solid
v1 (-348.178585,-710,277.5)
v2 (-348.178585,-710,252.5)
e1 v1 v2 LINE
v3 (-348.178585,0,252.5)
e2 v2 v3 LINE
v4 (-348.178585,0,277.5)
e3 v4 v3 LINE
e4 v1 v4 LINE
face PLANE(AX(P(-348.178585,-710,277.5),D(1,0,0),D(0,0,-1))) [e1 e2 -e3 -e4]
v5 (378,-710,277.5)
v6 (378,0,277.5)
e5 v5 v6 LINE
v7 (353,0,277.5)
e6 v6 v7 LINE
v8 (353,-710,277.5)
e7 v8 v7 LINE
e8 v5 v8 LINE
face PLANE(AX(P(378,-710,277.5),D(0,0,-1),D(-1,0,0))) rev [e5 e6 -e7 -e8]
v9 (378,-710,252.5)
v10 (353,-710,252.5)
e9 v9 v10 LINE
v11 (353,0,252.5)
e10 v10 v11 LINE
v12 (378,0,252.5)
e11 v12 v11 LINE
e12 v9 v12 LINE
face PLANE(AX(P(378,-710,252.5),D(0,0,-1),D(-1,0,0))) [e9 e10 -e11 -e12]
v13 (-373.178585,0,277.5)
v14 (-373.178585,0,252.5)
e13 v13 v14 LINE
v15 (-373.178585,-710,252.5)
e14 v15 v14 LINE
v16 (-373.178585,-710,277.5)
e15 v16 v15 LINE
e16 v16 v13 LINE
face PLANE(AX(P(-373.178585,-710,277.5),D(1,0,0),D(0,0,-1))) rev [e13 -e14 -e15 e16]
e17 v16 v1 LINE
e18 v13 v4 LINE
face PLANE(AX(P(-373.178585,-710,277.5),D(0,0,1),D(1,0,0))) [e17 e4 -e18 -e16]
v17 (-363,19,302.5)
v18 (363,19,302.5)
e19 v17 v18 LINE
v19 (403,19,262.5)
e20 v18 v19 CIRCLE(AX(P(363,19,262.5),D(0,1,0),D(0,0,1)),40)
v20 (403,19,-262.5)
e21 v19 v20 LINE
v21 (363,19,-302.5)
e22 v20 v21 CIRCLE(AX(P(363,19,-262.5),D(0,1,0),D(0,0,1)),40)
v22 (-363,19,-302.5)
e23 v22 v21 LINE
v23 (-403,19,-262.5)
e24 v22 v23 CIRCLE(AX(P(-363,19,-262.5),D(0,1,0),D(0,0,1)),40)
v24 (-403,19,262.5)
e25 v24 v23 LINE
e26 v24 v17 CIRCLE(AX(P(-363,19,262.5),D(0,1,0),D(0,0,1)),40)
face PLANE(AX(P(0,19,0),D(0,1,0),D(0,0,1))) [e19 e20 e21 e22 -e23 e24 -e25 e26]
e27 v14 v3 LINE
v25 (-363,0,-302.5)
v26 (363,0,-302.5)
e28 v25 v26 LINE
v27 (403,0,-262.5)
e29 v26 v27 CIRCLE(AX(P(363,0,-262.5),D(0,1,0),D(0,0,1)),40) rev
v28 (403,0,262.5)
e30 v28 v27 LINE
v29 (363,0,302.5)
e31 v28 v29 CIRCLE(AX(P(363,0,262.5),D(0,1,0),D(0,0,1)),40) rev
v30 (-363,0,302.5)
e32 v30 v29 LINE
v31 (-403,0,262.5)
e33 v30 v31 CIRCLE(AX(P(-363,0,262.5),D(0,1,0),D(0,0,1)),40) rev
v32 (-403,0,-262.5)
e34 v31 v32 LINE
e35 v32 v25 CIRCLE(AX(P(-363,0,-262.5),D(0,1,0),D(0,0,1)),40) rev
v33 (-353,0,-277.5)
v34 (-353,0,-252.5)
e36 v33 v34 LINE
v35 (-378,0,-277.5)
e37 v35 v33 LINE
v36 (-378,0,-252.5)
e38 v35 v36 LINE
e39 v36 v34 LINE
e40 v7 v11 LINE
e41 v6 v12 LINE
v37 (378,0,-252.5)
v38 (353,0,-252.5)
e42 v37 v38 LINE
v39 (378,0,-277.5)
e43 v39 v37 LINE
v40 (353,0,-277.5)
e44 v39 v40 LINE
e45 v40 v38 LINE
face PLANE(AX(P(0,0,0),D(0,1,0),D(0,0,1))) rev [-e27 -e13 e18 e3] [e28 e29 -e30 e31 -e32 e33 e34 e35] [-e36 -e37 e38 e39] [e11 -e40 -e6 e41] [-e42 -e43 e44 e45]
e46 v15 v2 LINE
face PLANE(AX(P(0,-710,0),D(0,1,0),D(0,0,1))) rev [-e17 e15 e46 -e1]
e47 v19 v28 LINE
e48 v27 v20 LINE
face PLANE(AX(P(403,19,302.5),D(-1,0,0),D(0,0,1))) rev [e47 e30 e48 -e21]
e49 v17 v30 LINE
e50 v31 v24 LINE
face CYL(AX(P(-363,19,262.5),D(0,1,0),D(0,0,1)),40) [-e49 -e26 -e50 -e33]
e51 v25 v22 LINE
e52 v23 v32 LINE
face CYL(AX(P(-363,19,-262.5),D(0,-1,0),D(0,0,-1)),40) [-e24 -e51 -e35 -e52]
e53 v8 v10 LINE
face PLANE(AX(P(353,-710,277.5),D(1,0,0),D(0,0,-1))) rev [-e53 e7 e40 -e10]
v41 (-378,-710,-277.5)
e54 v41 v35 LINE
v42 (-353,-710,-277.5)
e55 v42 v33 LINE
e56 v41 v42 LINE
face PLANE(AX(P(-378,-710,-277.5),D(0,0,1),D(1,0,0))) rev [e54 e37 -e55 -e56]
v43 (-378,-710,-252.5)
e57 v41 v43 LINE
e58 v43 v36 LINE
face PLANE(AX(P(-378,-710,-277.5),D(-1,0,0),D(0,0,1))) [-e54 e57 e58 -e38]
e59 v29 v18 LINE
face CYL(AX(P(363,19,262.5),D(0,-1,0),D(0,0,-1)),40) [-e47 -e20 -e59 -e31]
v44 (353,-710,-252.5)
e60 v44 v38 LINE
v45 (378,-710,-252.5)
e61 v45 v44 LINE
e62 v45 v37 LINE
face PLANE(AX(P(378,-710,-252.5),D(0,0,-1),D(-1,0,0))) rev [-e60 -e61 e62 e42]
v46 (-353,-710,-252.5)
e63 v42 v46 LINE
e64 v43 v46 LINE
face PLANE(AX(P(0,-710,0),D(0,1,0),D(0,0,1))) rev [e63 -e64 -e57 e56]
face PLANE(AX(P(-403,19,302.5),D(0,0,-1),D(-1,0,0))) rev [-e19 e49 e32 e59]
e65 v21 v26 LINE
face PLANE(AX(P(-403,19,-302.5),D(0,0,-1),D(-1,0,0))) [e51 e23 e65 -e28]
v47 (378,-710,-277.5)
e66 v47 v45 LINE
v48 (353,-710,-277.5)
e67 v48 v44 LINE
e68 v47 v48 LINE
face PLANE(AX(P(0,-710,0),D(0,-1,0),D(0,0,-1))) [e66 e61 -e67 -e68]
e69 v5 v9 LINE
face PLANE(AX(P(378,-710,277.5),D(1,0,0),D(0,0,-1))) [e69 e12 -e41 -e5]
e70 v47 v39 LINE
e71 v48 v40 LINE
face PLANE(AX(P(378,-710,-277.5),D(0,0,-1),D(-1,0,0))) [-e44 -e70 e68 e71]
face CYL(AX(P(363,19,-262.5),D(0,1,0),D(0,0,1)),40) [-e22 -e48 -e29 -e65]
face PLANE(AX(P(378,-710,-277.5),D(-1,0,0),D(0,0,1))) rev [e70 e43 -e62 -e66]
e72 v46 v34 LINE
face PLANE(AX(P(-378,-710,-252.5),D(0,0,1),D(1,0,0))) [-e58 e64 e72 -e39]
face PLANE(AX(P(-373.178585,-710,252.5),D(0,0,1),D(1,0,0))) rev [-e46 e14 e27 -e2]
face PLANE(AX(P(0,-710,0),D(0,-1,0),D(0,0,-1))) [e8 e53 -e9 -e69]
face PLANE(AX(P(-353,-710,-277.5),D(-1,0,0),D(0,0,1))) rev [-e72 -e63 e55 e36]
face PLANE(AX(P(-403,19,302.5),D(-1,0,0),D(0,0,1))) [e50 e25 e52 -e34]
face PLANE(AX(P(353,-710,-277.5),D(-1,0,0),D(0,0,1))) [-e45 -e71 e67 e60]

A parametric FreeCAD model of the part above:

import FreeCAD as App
import Part
import Sketcher

V = App.Vector
Q = App.Units.Quantity


def edges_at(feature, points):
    """Names of the edges that pass closest to the given points."""
    edges = feature.Shape.Edges
    near = lambda p: min(range(len(edges)), key=lambda i: edges[i].distToShape(Part.Vertex(*p))[0])
    return sorted({f"Edge{near(p) + 1}" for p in points})

doc = App.newDocument("Part")
body = doc.addObject("PartDesign::Body", "Body")

# Sketch on XZ plane
sketch1 = body.newObject("Sketcher::SketchObject", "Sketch")
sketch1.AttachmentSupport = (doc.getObject("XZ_Plane"), [""])
sketch1.MapMode = "FlatFace"
sketch1.addGeometry(Part.LineSegment(V(-403, -302, 0), V(-403, 302, 0)), False)
sketch1.addGeometry(Part.LineSegment(V(-403, 302, 0), V(403, 302, 0)), False)
sketch1.addGeometry(Part.LineSegment(V(403, 302, 0), V(403, -302, 0)), False)
sketch1.addGeometry(Part.LineSegment(V(403, -302, 0), V(-403, -302, 0)), False)
sketch1.addConstraint(Sketcher.Constraint("Coincident", 0, 2, 1, 1))
sketch1.addConstraint(Sketcher.Constraint("Coincident", 1, 2, 2, 1))
sketch1.addConstraint(Sketcher.Constraint("Coincident", 2, 2, 3, 1))
sketch1.addConstraint(Sketcher.Constraint("Coincident", 3, 2, 0, 1))
sketch1.addConstraint(Sketcher.Constraint("Vertical", 0))
sketch1.addConstraint(Sketcher.Constraint("Horizontal", 1))
sketch1.addConstraint(Sketcher.Constraint("Vertical", 2))
sketch1.addConstraint(Sketcher.Constraint("Horizontal", 3))
sketch1.addConstraint(Sketcher.Constraint("Symmetric", 0, 2, 2, 2, -1, 1))
sketch1.addConstraint(Sketcher.Constraint("DistanceX", 1, 1, 1, 2, Q("806 mm")))
sketch1.addConstraint(Sketcher.Constraint("DistanceY", 0, 1, 0, 2, Q("605 mm")))
pad1 = body.newObject("PartDesign::Pad", "Pad")
pad1.Profile = sketch1
pad1.Length = 19
pad1.Reversed = True

# Sketch on XZ plane
sketch2 = body.newObject("Sketcher::SketchObject", "Sketch001")
sketch2.AttachmentSupport = (doc.getObject("XZ_Plane"), [""])
sketch2.MapMode = "FlatFace"
sketch2.addGeometry(Part.LineSegment(V(-373, 278, 0), V(-373, 252, 0)), False)
sketch2.addGeometry(Part.LineSegment(V(-373, 252, 0), V(-348, 252, 0)), False)
sketch2.addGeometry(Part.LineSegment(V(-348, 252, 0), V(-348, 278, 0)), False)
sketch2.addGeometry(Part.LineSegment(V(-348, 278, 0), V(-373, 278, 0)), False)
sketch2.addGeometry(Part.LineSegment(V(353, 278, 0), V(353, 252, 0)), False)
sketch2.addGeometry(Part.LineSegment(V(353, 252, 0), V(378, 252, 0)), False)
sketch2.addGeometry(Part.LineSegment(V(378, 252, 0), V(378, 278, 0)), False)
sketch2.addGeometry(Part.LineSegment(V(378, 278, 0), V(353, 278, 0)), False)
sketch2.addGeometry(Part.LineSegment(V(353, -252, 0), V(353, -278, 0)), False)
sketch2.addGeometry(Part.LineSegment(V(353, -278, 0), V(378, -278, 0)), False)
sketch2.addGeometry(Part.LineSegment(V(378, -278, 0), V(378, -252, 0)), False)
sketch2.addGeometry(Part.LineSegment(V(378, -252, 0), V(353, -252, 0)), False)
sketch2.addGeometry(Part.LineSegment(V(-378, -252, 0), V(-378, -278, 0)), False)
sketch2.addGeometry(Part.LineSegment(V(-378, -278, 0), V(-353, -278, 0)), False)
sketch2.addGeometry(Part.LineSegment(V(-353, -278, 0), V(-353, -252, 0)), False)
sketch2.addGeometry(Part.LineSegment(V(-353, -252, 0), V(-378, -252, 0)), False)
sketch2.addConstraint(Sketcher.Constraint("Coincident", 0, 2, 1, 1))
sketch2.addConstraint(Sketcher.Constraint("Coincident", 1, 2, 2, 1))
sketch2.addConstraint(Sketcher.Constraint("Coincident", 2, 2, 3, 1))
sketch2.addConstraint(Sketcher.Constraint("Coincident", 3, 2, 0, 1))
sketch2.addConstraint(Sketcher.Constraint("Coincident", 4, 2, 5, 1))
sketch2.addConstraint(Sketcher.Constraint("Coincident", 5, 2, 6, 1))
sketch2.addConstraint(Sketcher.Constraint("Coincident", 6, 2, 7, 1))
sketch2.addConstraint(Sketcher.Constraint("Coincident", 7, 2, 4, 1))
sketch2.addConstraint(Sketcher.Constraint("Coincident", 8, 2, 9, 1))
sketch2.addConstraint(Sketcher.Constraint("Coincident", 9, 2, 10, 1))
sketch2.addConstraint(Sketcher.Constraint("Coincident", 10, 2, 11, 1))
sketch2.addConstraint(Sketcher.Constraint("Coincident", 11, 2, 8, 1))
sketch2.addConstraint(Sketcher.Constraint("Coincident", 12, 2, 13, 1))
sketch2.addConstraint(Sketcher.Constraint("Coincident", 13, 2, 14, 1))
sketch2.addConstraint(Sketcher.Constraint("Coincident", 14, 2, 15, 1))
sketch2.addConstraint(Sketcher.Constraint("Coincident", 15, 2, 12, 1))
sketch2.addConstraint(Sketcher.Constraint("Vertical", 0))
sketch2.addConstraint(Sketcher.Constraint("Horizontal", 1))
sketch2.addConstraint(Sketcher.Constraint("Vertical", 2))
sketch2.addConstraint(Sketcher.Constraint("Horizontal", 3))
sketch2.addConstraint(Sketcher.Constraint("Vertical", 4))
sketch2.addConstraint(Sketcher.Constraint("Horizontal", 5))
sketch2.addConstraint(Sketcher.Constraint("Vertical", 6))
sketch2.addConstraint(Sketcher.Constraint("Horizontal", 7))
sketch2.addConstraint(Sketcher.Constraint("Vertical", 8))
sketch2.addConstraint(Sketcher.Constraint("Horizontal", 9))
sketch2.addConstraint(Sketcher.Constraint("Vertical", 10))
sketch2.addConstraint(Sketcher.Constraint("Horizontal", 11))
sketch2.addConstraint(Sketcher.Constraint("Vertical", 12))
sketch2.addConstraint(Sketcher.Constraint("Horizontal", 13))
sketch2.addConstraint(Sketcher.Constraint("Vertical", 14))
sketch2.addConstraint(Sketcher.Constraint("Horizontal", 15))
sketch2.addConstraint(Sketcher.Constraint("Symmetric", 6, 2, 12, 2, -1, 1))
sketch2.addConstraint(Sketcher.Constraint("Symmetric", 4, 2, 14, 2, -1, 1))
sketch2.addConstraint(Sketcher.Constraint("Symmetric", 9, 2, 12, 2, -2))
sketch2.addConstraint(Sketcher.Constraint("Symmetric", 11, 2, 14, 2, -2))
sketch2.addConstraint(Sketcher.Constraint("Horizontal", 1, 2, 4, 2))
sketch2.addConstraint(Sketcher.Constraint("Horizontal", 3, 2, 6, 2))
sketch2.addConstraint(Sketcher.Constraint("Equal", 3, 5))
sketch2.addConstraint(Sketcher.Constraint("Equal", 15, 0))
sketch2.addConstraint(Sketcher.Constraint("DistanceX", 1, 1, 1, 2, Q("25 mm")))
sketch2.addConstraint(Sketcher.Constraint("DistanceX", -1, 1, 4, 2, Q("353 mm")))
sketch2.addConstraint(Sketcher.Constraint("DistanceY", 8, 2, 4, 2, Q("530 mm")))
sketch2.addConstraint(Sketcher.Constraint("DistanceX", 0, 2, -1, 1, Q("373.178585 mm")))
pad2 = body.newObject("PartDesign::Pad", "Pad001")
pad2.Profile = sketch2
pad2.Length = 710
doc.recompute()

fillet = body.newObject("PartDesign::Fillet", "Fillet")
fillet.Base = (pad2, edges_at(pad2, [(403, 9.5, 302.5)]))
fillet.Radius = 40
doc.recompute()

fillet2 = body.newObject("PartDesign::Fillet", "Fillet001")
fillet2.Base = (fillet, edges_at(fillet, [(-403, 9.5, 302.5)]))
fillet2.Radius = 40
doc.recompute()

fillet3 = body.newObject("PartDesign::Fillet", "Fillet002")
fillet3.Base = (fillet2, edges_at(fillet2, [(-403, 9.5, -302.5), (403, 9.5, -302.5)]))
fillet3.Radius = 40

doc.recompute()
